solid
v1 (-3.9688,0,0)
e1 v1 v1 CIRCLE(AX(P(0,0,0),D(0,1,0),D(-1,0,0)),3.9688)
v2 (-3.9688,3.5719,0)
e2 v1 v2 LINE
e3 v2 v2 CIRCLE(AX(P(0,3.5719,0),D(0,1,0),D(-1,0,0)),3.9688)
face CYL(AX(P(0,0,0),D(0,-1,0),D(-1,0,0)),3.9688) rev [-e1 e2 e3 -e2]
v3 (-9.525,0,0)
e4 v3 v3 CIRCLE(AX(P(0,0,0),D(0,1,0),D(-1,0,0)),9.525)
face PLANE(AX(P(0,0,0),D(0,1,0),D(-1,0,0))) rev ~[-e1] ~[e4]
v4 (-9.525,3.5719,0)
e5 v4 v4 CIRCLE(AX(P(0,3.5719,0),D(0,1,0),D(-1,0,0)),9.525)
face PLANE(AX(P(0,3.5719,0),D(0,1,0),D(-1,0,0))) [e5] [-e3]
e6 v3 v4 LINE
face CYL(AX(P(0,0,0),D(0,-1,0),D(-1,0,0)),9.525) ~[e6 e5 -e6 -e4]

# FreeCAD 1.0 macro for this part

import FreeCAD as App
import Part
import Sketcher
from FreeCAD import Vector
Q = App.Units.Quantity

doc = App.newDocument("Part")
body = doc.addObject("PartDesign::Body", "Body")

sketch1 = doc.addObject("Sketcher::SketchObject", "Sketch")
body.addObject(sketch1)
sketch1.AttachmentSupport = (doc.XZ_Plane, [""])
sketch1.MapMode = "FlatFace"
sketch1.addGeometry([
    Part.Circle(Vector(0, 0, 0), Vector(0, 0, 1), 9.525),
    Part.Circle(Vector(0, 0, 0), Vector(0, 0, 1), 3.9688),
], False)
sketch1.addConstraint([
    Sketcher.Constraint("Coincident", 0, 3, -1, 1),
    Sketcher.Constraint("Coincident", 1, 3, -1, 1),
    Sketcher.Constraint("Diameter", 0, Q("0.75 in")),
    Sketcher.Constraint("Diameter", 1, Q("0.3125 in")),
])
pad1 = doc.addObject("PartDesign::Pad", "Pad")
body.addObject(pad1)
pad1.Profile = sketch1
pad1.Length = Q("0.140626 in")
pad1.Reversed = True

doc.recompute()
